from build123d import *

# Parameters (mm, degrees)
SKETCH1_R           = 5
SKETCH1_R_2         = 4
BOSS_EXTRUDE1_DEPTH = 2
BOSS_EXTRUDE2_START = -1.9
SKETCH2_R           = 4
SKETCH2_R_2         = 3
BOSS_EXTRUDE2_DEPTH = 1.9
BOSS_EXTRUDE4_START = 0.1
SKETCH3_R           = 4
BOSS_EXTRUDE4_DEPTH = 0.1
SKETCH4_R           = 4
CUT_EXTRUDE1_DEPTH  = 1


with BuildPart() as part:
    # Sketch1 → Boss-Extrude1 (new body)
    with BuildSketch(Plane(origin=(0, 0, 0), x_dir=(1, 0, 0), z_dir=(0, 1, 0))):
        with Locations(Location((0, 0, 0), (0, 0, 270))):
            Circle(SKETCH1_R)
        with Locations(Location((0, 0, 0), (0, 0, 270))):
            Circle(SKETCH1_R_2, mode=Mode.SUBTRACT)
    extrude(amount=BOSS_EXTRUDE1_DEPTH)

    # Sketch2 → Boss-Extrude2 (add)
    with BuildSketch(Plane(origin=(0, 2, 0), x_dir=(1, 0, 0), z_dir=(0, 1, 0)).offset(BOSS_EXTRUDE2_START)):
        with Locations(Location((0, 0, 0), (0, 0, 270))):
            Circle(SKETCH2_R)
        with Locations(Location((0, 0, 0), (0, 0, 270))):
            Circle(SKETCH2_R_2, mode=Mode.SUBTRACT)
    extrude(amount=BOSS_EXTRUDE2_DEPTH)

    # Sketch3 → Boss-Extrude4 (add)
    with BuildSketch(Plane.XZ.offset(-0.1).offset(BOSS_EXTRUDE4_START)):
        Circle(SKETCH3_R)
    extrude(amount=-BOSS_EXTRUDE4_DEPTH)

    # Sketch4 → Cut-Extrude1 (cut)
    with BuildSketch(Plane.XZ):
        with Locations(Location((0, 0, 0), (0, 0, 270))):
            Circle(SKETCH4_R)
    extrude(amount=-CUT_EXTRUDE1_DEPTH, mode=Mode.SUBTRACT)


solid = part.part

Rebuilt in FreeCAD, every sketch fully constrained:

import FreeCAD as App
import Part
import Sketcher

doc = App.newDocument("Part")
body = doc.addObject("PartDesign::Body", "Body")

# Sketch on XZ plane
sketch1 = doc.addObject("Sketcher::SketchObject", "Sketch")
body.addObject(sketch1)
sketch1.AttachmentSupport = (doc.XZ_Plane, [""])
sketch1.MapMode = "FlatFace"
sketch1.addGeometry(Part.Circle(App.Vector(0, 0, 0), App.Vector(0, 0, 1), 5), False)
sketch1.addGeometry(Part.Circle(App.Vector(0, 0, 0), App.Vector(0, 0, 1), 4), False)
sketch1.addConstraint(Sketcher.Constraint("Coincident", 0, 3, -1, 1))
sketch1.addConstraint(Sketcher.Constraint("Coincident", 1, 3, -1, 1))
sketch1.addConstraint(Sketcher.Constraint("Diameter", 0, 10.0))
sketch1.addConstraint(Sketcher.Constraint("Diameter", 1, 8.0))
pad1 = doc.addObject("PartDesign::Pad", "Pad")
body.addObject(pad1)
pad1.Profile = sketch1
pad1.Length = 2
pad1.Reversed = True

# Sketch on XZ plane
sketch2 = doc.addObject("Sketcher::SketchObject", "Sketch001")
body.addObject(sketch2)
sketch2.AttachmentSupport = (doc.XZ_Plane, [""])
sketch2.MapMode = "FlatFace"
sketch2.AttachmentOffset = App.Placement(App.Vector(0, 0, -0.1), App.Rotation())
sketch2.addGeometry(Part.Circle(App.Vector(0, 0, 0), App.Vector(0, 0, 1), 4), False)
sketch2.addGeometry(Part.Circle(App.Vector(0, 0, 0), App.Vector(0, 0, 1), 3), False)
sketch2.addConstraint(Sketcher.Constraint("Coincident", 0, 3, -1, 1))
sketch2.addConstraint(Sketcher.Constraint("Coincident", 1, 3, -1, 1))
sketch2.addConstraint(Sketcher.Constraint("Diameter", 0, 8.0))
sketch2.addConstraint(Sketcher.Constraint("Diameter", 1, 6.0))
pad2 = doc.addObject("PartDesign::Pad", "Pad001")
body.addObject(pad2)
pad2.Profile = sketch2
pad2.Length = 1.9
pad2.Reversed = True

# Sketch on XZ plane
sketch3 = doc.addObject("Sketcher::SketchObject", "Sketch002")
body.addObject(sketch3)
sketch3.AttachmentSupport = (doc.XZ_Plane, [""])
sketch3.MapMode = "FlatFace"
sketch3.addGeometry(Part.Circle(App.Vector(0, 0, 0), App.Vector(0, 0, 1), 4), False)
sketch3.addConstraint(Sketcher.Constraint("Coincident", 0, 3, -1, 1))
sketch3.addConstraint(Sketcher.Constraint("Diameter", 0, 8.0))
pad3 = doc.addObject("PartDesign::Pad", "Pad002")
body.addObject(pad3)
pad3.Profile = sketch3
pad3.Length = 0.1
pad3.Reversed = True

# Sketch on XZ plane
sketch4 = doc.addObject("Sketcher::SketchObject", "Sketch003")
body.addObject(sketch4)
sketch4.AttachmentSupport = (doc.XZ_Plane, [""])
sketch4.MapMode = "FlatFace"
sketch4.addGeometry(Part.Circle(App.Vector(0, 0, 0), App.Vector(0, 0, 1), 4), False)
sketch4.addConstraint(Sketcher.Constraint("Coincident", 0, 3, -1, 1))
sketch4.addConstraint(Sketcher.Constraint("Diameter", 0, 8.0))
pocket1 = doc.addObject("PartDesign::Pocket", "Pocket")
body.addObject(pocket1)
pocket1.Profile = sketch4
pocket1.Length = 1

doc.recompute()
